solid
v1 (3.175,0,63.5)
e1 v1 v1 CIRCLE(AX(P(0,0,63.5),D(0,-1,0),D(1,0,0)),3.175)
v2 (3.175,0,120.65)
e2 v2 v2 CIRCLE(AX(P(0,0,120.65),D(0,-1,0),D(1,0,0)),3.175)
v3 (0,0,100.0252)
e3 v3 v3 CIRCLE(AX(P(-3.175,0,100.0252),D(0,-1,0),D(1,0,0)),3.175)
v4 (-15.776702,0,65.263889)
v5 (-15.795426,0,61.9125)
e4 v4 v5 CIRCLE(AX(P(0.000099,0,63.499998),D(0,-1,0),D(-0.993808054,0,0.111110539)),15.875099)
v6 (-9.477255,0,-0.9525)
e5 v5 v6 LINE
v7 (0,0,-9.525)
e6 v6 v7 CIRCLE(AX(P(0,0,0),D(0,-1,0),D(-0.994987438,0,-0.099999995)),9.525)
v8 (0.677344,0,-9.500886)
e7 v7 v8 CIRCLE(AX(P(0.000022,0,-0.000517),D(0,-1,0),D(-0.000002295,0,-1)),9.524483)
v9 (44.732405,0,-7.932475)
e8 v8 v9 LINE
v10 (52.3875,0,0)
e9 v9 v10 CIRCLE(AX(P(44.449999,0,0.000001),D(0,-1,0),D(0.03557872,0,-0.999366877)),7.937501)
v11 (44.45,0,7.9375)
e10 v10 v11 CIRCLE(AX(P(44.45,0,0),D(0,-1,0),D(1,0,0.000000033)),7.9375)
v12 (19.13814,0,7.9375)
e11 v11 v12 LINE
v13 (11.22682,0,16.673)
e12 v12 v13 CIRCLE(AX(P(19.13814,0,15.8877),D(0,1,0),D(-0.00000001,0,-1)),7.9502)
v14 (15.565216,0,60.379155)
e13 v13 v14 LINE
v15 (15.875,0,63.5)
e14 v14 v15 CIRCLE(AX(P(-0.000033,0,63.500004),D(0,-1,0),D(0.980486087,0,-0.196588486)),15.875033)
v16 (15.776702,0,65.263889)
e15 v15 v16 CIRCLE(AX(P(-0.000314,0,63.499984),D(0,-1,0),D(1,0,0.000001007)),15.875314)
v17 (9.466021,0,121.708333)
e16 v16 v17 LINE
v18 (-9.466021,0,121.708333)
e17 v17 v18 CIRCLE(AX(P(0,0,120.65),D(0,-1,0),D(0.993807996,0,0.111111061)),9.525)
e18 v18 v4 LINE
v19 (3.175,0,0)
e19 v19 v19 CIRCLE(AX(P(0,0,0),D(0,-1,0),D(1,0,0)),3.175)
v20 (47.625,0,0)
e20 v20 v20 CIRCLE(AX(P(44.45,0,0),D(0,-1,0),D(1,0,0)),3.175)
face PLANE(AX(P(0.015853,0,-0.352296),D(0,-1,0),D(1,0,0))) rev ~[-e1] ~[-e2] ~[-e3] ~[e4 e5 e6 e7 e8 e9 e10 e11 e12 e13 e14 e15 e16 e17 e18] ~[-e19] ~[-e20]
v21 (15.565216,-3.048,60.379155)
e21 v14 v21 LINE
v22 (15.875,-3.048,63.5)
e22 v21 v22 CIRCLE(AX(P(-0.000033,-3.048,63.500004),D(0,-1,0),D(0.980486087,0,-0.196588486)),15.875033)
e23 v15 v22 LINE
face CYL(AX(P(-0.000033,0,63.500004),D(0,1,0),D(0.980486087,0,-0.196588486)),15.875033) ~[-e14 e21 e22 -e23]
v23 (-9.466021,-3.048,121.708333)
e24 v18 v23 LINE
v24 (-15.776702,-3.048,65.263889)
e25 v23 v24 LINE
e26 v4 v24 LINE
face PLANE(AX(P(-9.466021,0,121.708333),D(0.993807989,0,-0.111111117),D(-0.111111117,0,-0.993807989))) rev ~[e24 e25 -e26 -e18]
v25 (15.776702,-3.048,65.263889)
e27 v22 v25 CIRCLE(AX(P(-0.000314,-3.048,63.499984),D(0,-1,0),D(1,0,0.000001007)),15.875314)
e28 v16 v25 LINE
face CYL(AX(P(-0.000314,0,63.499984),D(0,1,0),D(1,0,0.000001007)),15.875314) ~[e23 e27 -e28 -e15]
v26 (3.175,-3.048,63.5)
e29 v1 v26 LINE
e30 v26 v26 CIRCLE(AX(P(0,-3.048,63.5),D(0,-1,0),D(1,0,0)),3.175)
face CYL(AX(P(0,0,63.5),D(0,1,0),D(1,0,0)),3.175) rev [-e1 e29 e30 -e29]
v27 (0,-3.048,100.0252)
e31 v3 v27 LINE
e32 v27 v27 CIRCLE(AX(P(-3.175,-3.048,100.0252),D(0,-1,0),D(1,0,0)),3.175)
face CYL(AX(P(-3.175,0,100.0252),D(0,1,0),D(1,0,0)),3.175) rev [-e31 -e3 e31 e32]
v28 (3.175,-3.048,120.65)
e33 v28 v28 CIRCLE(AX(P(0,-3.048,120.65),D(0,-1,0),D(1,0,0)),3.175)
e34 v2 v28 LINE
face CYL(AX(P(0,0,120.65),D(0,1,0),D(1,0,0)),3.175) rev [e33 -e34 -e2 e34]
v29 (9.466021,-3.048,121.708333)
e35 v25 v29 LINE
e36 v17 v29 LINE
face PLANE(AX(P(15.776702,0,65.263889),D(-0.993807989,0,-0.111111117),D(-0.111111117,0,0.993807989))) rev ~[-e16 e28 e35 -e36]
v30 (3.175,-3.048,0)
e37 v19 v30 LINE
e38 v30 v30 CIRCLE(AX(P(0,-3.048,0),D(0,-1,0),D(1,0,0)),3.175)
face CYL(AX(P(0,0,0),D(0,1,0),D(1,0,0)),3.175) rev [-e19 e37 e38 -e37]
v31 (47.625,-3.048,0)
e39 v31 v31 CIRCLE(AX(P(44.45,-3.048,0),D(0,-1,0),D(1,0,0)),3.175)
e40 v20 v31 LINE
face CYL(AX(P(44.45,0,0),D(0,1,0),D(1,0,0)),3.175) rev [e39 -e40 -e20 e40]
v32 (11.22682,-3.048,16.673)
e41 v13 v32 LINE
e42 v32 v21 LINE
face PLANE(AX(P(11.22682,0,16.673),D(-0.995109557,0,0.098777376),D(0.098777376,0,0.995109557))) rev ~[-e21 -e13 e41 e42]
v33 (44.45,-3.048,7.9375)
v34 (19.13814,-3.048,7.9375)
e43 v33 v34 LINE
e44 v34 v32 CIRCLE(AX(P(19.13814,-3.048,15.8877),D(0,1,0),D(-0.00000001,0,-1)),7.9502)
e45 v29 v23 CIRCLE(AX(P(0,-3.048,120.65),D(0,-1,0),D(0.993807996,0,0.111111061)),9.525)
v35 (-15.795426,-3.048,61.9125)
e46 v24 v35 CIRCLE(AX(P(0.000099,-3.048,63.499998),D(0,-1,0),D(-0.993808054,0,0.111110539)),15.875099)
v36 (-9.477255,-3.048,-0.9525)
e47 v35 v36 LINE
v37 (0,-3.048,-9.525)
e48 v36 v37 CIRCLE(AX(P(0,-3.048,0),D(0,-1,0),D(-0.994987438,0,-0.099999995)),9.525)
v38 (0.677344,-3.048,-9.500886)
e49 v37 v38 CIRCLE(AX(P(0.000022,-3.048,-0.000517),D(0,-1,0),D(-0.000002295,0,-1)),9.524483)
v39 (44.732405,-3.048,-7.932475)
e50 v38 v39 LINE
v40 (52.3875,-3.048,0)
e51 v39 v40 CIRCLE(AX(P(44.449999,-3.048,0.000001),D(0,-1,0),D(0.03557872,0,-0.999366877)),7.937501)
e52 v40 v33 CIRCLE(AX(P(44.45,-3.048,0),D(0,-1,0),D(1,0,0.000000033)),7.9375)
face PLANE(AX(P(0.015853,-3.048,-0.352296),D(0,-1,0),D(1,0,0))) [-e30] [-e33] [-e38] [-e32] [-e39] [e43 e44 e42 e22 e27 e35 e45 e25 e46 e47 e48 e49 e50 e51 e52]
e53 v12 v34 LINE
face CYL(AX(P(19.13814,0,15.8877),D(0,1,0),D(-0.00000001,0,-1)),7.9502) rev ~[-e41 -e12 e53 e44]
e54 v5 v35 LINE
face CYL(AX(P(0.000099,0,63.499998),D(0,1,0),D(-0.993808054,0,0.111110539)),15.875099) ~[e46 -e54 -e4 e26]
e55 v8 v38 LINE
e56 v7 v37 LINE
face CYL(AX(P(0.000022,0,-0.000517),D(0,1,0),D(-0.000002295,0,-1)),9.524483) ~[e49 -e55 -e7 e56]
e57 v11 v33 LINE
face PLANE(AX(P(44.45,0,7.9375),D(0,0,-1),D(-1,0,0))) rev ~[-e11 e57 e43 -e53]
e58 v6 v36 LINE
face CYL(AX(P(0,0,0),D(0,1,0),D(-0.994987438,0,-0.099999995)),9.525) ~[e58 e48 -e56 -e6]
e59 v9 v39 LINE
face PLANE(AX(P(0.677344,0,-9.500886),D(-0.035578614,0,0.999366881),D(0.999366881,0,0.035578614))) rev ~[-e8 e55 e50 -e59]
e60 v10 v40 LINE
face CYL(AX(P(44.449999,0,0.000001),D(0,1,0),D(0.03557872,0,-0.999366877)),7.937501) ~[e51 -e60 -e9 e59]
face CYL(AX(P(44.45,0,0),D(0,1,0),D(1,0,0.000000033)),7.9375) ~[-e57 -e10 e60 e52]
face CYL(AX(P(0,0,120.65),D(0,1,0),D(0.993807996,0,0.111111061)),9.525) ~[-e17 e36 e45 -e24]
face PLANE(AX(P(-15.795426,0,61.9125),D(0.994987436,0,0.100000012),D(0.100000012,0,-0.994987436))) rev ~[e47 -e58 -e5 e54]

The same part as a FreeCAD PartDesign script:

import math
import FreeCAD as App
import Part
import Sketcher

V = App.Vector
Q = App.Units.Quantity

doc = App.newDocument("Part")
body = doc.addObject("PartDesign::Body", "Body")

sketch1 = doc.addObject("Sketcher::SketchObject", "Sketch")
body.addObject(sketch1)
sketch1.AttachmentSupport = (doc.XZ_Plane, [""])
sketch1.MapMode = "FlatFace"
sketch1.addGeometry([
    Part.LineSegment(V(0.677344, -9.500886, 0), V(44.732405, -7.932475, 0)),
    Part.ArcOfCircle(Part.Circle(V(44.449999, 0.000001, 0), V(0, 0, 1), 7.937501), math.radians(-87.961059), math.radians(-0.000005)),
    Part.ArcOfCircle(Part.Circle(V(44.45, 0, 0), V(0, 0, 1), 7.9375), math.radians(0.000002), math.radians(89.999998)),
    Part.LineSegment(V(44.45, 7.9375, 0), V(19.13814, 7.9375, 0)),
    Part.ArcOfCircle(Part.Circle(V(19.13814, 15.8877, 0), V(0, 0, 1), 7.9502), math.radians(174.331229), math.radians(269.999999)),
    Part.LineSegment(V(11.22682, 16.673, 0), V(15.565216, 60.379155, 0)),
    Part.ArcOfCircle(Part.Circle(V(-0.000033, 63.500004, 0), V(0, 0, 1), 15.875033), math.radians(-11.337533), math.radians(-0.000013)),
    Part.ArcOfCircle(Part.Circle(V(-0.000314, 63.499984, 0), V(0, 0, 1), 15.875314), math.radians(0.000058), math.radians(6.379302)),
    Part.LineSegment(V(15.776702, 65.263889, 0), V(9.466021, 121.708333, 0)),
    Part.ArcOfCircle(Part.Circle(V(0, 120.65, 0), V(0, 0, 1), 9.525), math.radians(6.379367), math.radians(173.620633)),
    Part.LineSegment(V(-9.466021, 121.708333, 0), V(-15.776702, 65.263889, 0)),
    Part.ArcOfCircle(Part.Circle(V(0.000099, 63.499998, 0), V(0, 0, 1), 15.875099), math.radians(173.620663), math.radians(185.739128)),
    Part.LineSegment(V(-15.795426, 61.9125, 0), V(-9.477255, -0.9525, 0)),
    Part.ArcOfCircle(Part.Circle(V(0, 0, 0), V(0, 0, 1), 9.525), math.radians(-174.26083), math.radians(-90.000002)),
    Part.ArcOfCircle(Part.Circle(V(0.000022, -0.000517, 0), V(0, 0, 1), 9.524483), math.radians(-90.000132), math.radians(-85.922038)),
    Part.Circle(V(0, 0, 0), V(0, 0, 1), 3.175),
    Part.Circle(V(44.45, 0, 0), V(0, 0, 1), 3.175),
    Part.Circle(V(0, 63.5, 0), V(0, 0, 1), 3.175),
    Part.Circle(V(-3.175, 100.0252, 0), V(0, 0, 1), 3.175),
    Part.Circle(V(0, 120.65, 0), V(0, 0, 1), 3.175),
], False)
sketch1.addConstraint([
    Sketcher.Constraint("Coincident", 0, 2, 1, 1),
    Sketcher.Constraint("Coincident", 1, 2, 2, 1),
    Sketcher.Constraint("Coincident", 2, 2, 3, 1),
    Sketcher.Constraint("Coincident", 3, 2, 4, 2),
    Sketcher.Constraint("Coincident", 4, 1, 5, 1),
    Sketcher.Constraint("Coincident", 5, 2, 6, 1),
    Sketcher.Constraint("Coincident", 6, 2, 7, 1),
    Sketcher.Constraint("Coincident", 7, 2, 8, 1),
    Sketcher.Constraint("Coincident", 8, 2, 9, 1),
    Sketcher.Constraint("Coincident", 9, 2, 10, 1),
    Sketcher.Constraint("Coincident", 10, 2, 11, 1),
    Sketcher.Constraint("Coincident", 11, 2, 12, 1),
    Sketcher.Constraint("Coincident", 12, 2, 13, 1),
    Sketcher.Constraint("Coincident", 13, 2, 14, 1),
    Sketcher.Constraint("Coincident", 14, 2, 0, 1),
    Sketcher.Constraint("Horizontal", 3),
    Sketcher.Constraint("Coincident", 13, 3, -1, 1),
    Sketcher.Constraint("Coincident", 15, 3, -1, 1),
    Sketcher.Constraint("Coincident", 2, 3, 1, 3),
    Sketcher.Constraint("Coincident", 16, 3, 1, 3),
    Sketcher.Constraint("Coincident", 19, 3, 9, 3),
    Sketcher.Constraint("PointOnObject", 1, 3, -1),
    Sketcher.Constraint("PointOnObject", 9, 3, -2),
    Sketcher.Constraint("PointOnObject", 17, 3, -2),
    Sketcher.Constraint("PointOnObject", 1, 2, -1),
    Sketcher.Constraint("PointOnObject", 13, 2, -2),
    Sketcher.Constraint("Diameter", 15, Q("0.25 in")),
    Sketcher.Constraint("Diameter", 16, Q("0.25 in")),
    Sketcher.Constraint("Diameter", 17, Q("0.25 in")),
    Sketcher.Constraint("Diameter", 18, Q("0.25 in")),
    Sketcher.Constraint("Diameter", 19, Q("0.25 in")),
    Sketcher.Constraint("Radius", 1, Q("0.3125 in")),
    Sketcher.Constraint("Radius", 4, Q("0.313 in")),
    Sketcher.Constraint("Radius", 9, Q("0.375 in")),
    Sketcher.Constraint("Radius", 13, Q("0.375 in")),
    Sketcher.Constraint("DistanceY", -1, 1, 6, 3, Q("2.5000001 in")),
    Sketcher.Constraint("DistanceY", -1, 1, 11, 3, Q("2.4999999 in")),
    Sketcher.Constraint("DistanceY", -1, 1, 17, 3, Q("2.5 in")),
    Sketcher.Constraint("DistanceY", -1, 1, 6, 2, Q("2.5 in")),
    Sketcher.Constraint("DistanceX", -1, 1, 1, 3, Q("1.75 in")),
    Sketcher.Constraint("DistanceY", -1, 1, 9, 3, Q("4.75 in")),
    Sketcher.Constraint("DistanceX", -1, 1, 2, 2, Q("1.75 in")),
    Sketcher.Constraint("Radius", 11, Q("15.875099 mm")),
    Sketcher.Constraint("DistanceY", 12, 2, 3, 2, Q("0.35 in")),
    Sketcher.Constraint("DistanceX", 18, 3, -1, 1, Q("0.125 in")),
    Sketcher.Constraint("DistanceY", -1, 1, 18, 3, Q("3.938 in")),
    Sketcher.Constraint("DistanceX", -1, 1, 6, 2, Q("0.625 in")),
    Sketcher.Constraint("DistanceY", -1, 1, 11, 2, Q("2.4375 in")),
    Sketcher.Constraint("DistanceX", 14, 3, 4, 1, Q("0.4419999 in")),
    Sketcher.Constraint("Radius", 6, Q("15.875033 mm")),
    Sketcher.Constraint("Radius", 7, Q("15.875314 mm")),
    Sketcher.Constraint("Radius", 14, Q("9.524483 mm")),
    Sketcher.Constraint("DistanceX", 11, 3, 5, 2, Q("0.6127999 in")),
    Sketcher.Constraint("DistanceX", 3, 2, 3, 1, Q("25.31186 mm")),
    Sketcher.Constraint("DistanceY", -1, 1, 4, 1, Q("16.673 mm")),
    Sketcher.Constraint("DistanceX", 11, 3, 1, 3, Q("44.4499 mm")),
    Sketcher.Constraint("DistanceY", 14, 3, 7, 3, Q("63.500501 mm")),
    Sketcher.Constraint("DistanceX", 10, 2, 11, 3, Q("15.776801 mm")),
    Sketcher.Constraint("DistanceX", 12, 2, 14, 2, Q("10.154599 mm")),
    Sketcher.Constraint("Distance", 0, Q("44.082971 mm")),
    Sketcher.Constraint("DistanceX", -1, 1, 4, 3, Q("19.13814 mm")),
    Sketcher.Constraint("DistanceY", -1, 1, 7, 2, Q("65.263889 mm")),
    Sketcher.Constraint("DistanceX", -1, 1, 8, 2, Q("9.466021 mm")),
    Sketcher.Constraint("DistanceX", 9, 2, -1, 1, Q("9.466021 mm")),
])
pad1 = doc.addObject("PartDesign::Pad", "Pad")
body.addObject(pad1)
pad1.Profile = sketch1
pad1.Length = Q("0.12 in")

doc.recompute()
